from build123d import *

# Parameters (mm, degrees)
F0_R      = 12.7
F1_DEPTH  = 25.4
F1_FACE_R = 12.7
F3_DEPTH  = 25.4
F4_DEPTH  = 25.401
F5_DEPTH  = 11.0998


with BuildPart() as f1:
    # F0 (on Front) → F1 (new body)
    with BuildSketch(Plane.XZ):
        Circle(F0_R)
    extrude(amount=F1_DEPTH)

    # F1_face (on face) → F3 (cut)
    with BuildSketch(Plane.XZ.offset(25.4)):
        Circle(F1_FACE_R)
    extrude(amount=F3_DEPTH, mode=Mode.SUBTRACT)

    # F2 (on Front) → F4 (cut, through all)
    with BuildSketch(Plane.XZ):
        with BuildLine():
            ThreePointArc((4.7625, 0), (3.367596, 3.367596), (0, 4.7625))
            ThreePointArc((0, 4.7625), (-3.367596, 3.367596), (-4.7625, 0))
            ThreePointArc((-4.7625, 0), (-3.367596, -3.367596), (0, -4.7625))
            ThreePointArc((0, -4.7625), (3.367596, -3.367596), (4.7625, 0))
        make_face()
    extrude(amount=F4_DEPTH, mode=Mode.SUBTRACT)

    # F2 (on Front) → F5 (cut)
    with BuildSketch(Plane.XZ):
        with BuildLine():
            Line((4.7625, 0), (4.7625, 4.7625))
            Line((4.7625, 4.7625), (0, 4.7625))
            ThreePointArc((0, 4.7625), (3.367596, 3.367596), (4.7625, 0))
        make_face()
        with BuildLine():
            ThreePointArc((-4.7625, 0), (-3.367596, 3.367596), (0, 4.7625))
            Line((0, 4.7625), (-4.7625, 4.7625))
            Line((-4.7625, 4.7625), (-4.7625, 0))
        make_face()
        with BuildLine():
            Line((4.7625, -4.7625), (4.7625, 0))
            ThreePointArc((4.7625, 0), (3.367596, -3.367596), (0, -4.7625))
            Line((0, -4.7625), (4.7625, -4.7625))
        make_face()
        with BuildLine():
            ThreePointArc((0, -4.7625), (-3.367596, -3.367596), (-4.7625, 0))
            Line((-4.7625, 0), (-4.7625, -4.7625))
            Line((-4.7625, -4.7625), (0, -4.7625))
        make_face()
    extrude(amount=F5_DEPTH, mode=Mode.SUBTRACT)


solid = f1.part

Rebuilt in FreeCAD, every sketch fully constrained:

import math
import FreeCAD as App
import Part
import Sketcher
from FreeCAD import Vector
Q = App.Units.Quantity

doc = App.newDocument("Part")
body = doc.addObject("PartDesign::Body", "Body")

sketch1 = doc.addObject("Sketcher::SketchObject", "Sketch")
body.addObject(sketch1)
sketch1.AttachmentSupport = (doc.XZ_Plane, [""])
sketch1.MapMode = "FlatFace"
sketch1.addGeometry(Part.Circle(Vector(0, 0, 0), Vector(0, 0, 1), 13), False)
sketch1.addConstraint(Sketcher.Constraint("Coincident", 0, 3, -1, 1))
sketch1.addConstraint(Sketcher.Constraint("Diameter", 0, Q("1 in")))
pad1 = doc.addObject("PartDesign::Pad", "Pad")
body.addObject(pad1)
pad1.Profile = sketch1
pad1.Length = Q("1 in")

sketch2 = doc.addObject("Sketcher::SketchObject", "Sketch001")
body.addObject(sketch2)
sketch2.AttachmentSupport = (doc.XZ_Plane, [""])
sketch2.MapMode = "FlatFace"
sketch2.AttachmentOffset = App.Placement(Vector(0, 0, 1 * 25.4), App.Rotation())
sketch2.addGeometry(Part.Circle(Vector(0, 0, 0), Vector(0, 0, 1), 13), False)
sketch2.addConstraint(Sketcher.Constraint("Coincident", 0, 3, -1, 1))
sketch2.addConstraint(Sketcher.Constraint("Diameter", 0, Q("1 in")))
pocket1 = doc.addObject("PartDesign::Pocket", "Pocket")
body.addObject(pocket1)
pocket1.Profile = sketch2
pocket1.Length = Q("1 in")
pocket1.Reversed = True

sketch3 = doc.addObject("Sketcher::SketchObject", "Sketch002")
body.addObject(sketch3)
sketch3.AttachmentSupport = (doc.XZ_Plane, [""])
sketch3.MapMode = "FlatFace"
sketch3.addGeometry(Part.ArcOfCircle(Part.Circle(Vector(0, 0, 0), Vector(0, 0, 1), 4.8), math.radians(0), math.radians(90)), False)
sketch3.addGeometry(Part.ArcOfCircle(Part.Circle(Vector(0, 0, 0), Vector(0, 0, 1), 4.8), math.radians(90), math.radians(180)), False)
sketch3.addGeometry(Part.ArcOfCircle(Part.Circle(Vector(0, 0, 0), Vector(0, 0, 1), 4.8), math.radians(-180), math.radians(-90)), False)
sketch3.addGeometry(Part.ArcOfCircle(Part.Circle(Vector(0, 0, 0), Vector(0, 0, 1), 4.8), math.radians(-90), math.radians(0)), False)
sketch3.addConstraint(Sketcher.Constraint("Tangent", 0, 2, 1, 1))
sketch3.addConstraint(Sketcher.Constraint("Tangent", 1, 2, 2, 1))
sketch3.addConstraint(Sketcher.Constraint("Tangent", 2, 2, 3, 1))
sketch3.addConstraint(Sketcher.Constraint("Tangent", 3, 2, 0, 1))
sketch3.addConstraint(Sketcher.Constraint("Coincident", 0, 3, -1, 1))
sketch3.addConstraint(Sketcher.Constraint("Equal", 0, 1))
sketch3.addConstraint(Sketcher.Constraint("PointOnObject", 0, 2, -2))
sketch3.addConstraint(Sketcher.Constraint("PointOnObject", 1, 2, -1))
sketch3.addConstraint(Sketcher.Constraint("PointOnObject", 2, 2, -2))
sketch3.addConstraint(Sketcher.Constraint("PointOnObject", 3, 2, -1))
sketch3.addConstraint(Sketcher.Constraint("Radius", 0, Q("0.1875 in")))
pocket2 = doc.addObject("PartDesign::Pocket", "Pocket001")
body.addObject(pocket2)
pocket2.Profile = sketch3
pocket2.Type = "ThroughAll"
pocket2.Reversed = True

sketch4 = doc.addObject("Sketcher::SketchObject", "Sketch003")
body.addObject(sketch4)
sketch4.AttachmentSupport = (doc.XZ_Plane, [""])
sketch4.MapMode = "FlatFace"
sketch4.addGeometry(Part.LineSegment(Vector(4.8, 0, 0), Vector(4.8, 4.8, 0)), False)
sketch4.addGeometry(Part.LineSegment(Vector(4.8, 4.8, 0), Vector(0, 4.8, 0)), False)
sketch4.addGeometry(Part.ArcOfCircle(Part.Circle(Vector(0, 0, 0), Vector(0, 0, 1), 4.8), math.radians(0), math.radians(90)), False)
sketch4.addGeometry(Part.ArcOfCircle(Part.Circle(Vector(0, 0, 0), Vector(0, 0, 1), 4.8), math.radians(90), math.radians(180)), False)
sketch4.addGeometry(Part.LineSegment(Vector(0, 4.8, 0), Vector(-4.8, 4.8, 0)), False)
sketch4.addGeometry(Part.LineSegment(Vector(-4.8, 4.8, 0), Vector(-4.8, 0, 0)), False)
sketch4.addGeometry(Part.LineSegment(Vector(4.8, -4.8, 0), Vector(4.8, 0, 0)), False)
sketch4.addGeometry(Part.ArcOfCircle(Part.Circle(Vector(0, 0, 0), Vector(0, 0, 1), 4.8), math.radians(-90), math.radians(0)), False)
sketch4.addGeometry(Part.LineSegment(Vector(0, -4.8, 0), Vector(4.8, -4.8, 0)), False)
sketch4.addGeometry(Part.ArcOfCircle(Part.Circle(Vector(0, 0, 0), Vector(0, 0, 1), 4.8), math.radians(-180), math.radians(-90)), False)
sketch4.addGeometry(Part.LineSegment(Vector(-4.8, 0, 0), Vector(-4.8, -4.8, 0)), False)
sketch4.addGeometry(Part.LineSegment(Vector(-4.8, -4.8, 0), Vector(0, -4.8, 0)), False)
sketch4.addConstraint(Sketcher.Constraint("Coincident", 0, 2, 1, 1))
sketch4.addConstraint(Sketcher.Constraint("Tangent", 1, 2, 2, 2))
sketch4.addConstraint(Sketcher.Constraint("Tangent", 2, 1, 0, 1))
sketch4.addConstraint(Sketcher.Constraint("Tangent", 3, 1, 4, 1))
sketch4.addConstraint(Sketcher.Constraint("Coincident", 4, 2, 5, 1))
sketch4.addConstraint(Sketcher.Constraint("Tangent", 5, 2, 3, 2))
sketch4.addConstraint(Sketcher.Constraint("Tangent", 6, 2, 7, 2))
sketch4.addConstraint(Sketcher.Constraint("Tangent", 7, 1, 8, 1))
sketch4.addConstraint(Sketcher.Constraint("Coincident", 8, 2, 6, 1))
sketch4.addConstraint(Sketcher.Constraint("Tangent", 9, 1, 10, 1))
sketch4.addConstraint(Sketcher.Constraint("Coincident", 10, 2, 11, 1))
sketch4.addConstraint(Sketcher.Constraint("Tangent", 11, 2, 9, 2))
sketch4.addConstraint(Sketcher.Constraint("Vertical", 0))
sketch4.addConstraint(Sketcher.Constraint("Horizontal", 1))
sketch4.addConstraint(Sketcher.Constraint("Horizontal", 4))
sketch4.addConstraint(Sketcher.Constraint("Vertical", 5))
sketch4.addConstraint(Sketcher.Constraint("Vertical", 6))
sketch4.addConstraint(Sketcher.Constraint("Horizontal", 8))
sketch4.addConstraint(Sketcher.Constraint("Vertical", 10))
sketch4.addConstraint(Sketcher.Constraint("Horizontal", 11))
sketch4.addConstraint(Sketcher.Constraint("Coincident", 2, 3, -1, 1))
sketch4.addConstraint(Sketcher.Constraint("Coincident", 3, 3, -1, 1))
sketch4.addConstraint(Sketcher.Constraint("Coincident", 7, 3, -1, 1))
sketch4.addConstraint(Sketcher.Constraint("Coincident", 9, 3, -1, 1))
sketch4.addConstraint(Sketcher.Constraint("Equal", 2, 3))
sketch4.addConstraint(Sketcher.Constraint("Equal", 3, 7))
sketch4.addConstraint(Sketcher.Constraint("Equal", 7, 9))
sketch4.addConstraint(Sketcher.Constraint("Radius", 2, Q("0.1875 in")))
pocket3 = doc.addObject("PartDesign::Pocket", "Pocket002")
body.addObject(pocket3)
pocket3.Profile = sketch4
pocket3.Length = Q("0.437 in")
pocket3.Reversed = True

doc.recompute()
